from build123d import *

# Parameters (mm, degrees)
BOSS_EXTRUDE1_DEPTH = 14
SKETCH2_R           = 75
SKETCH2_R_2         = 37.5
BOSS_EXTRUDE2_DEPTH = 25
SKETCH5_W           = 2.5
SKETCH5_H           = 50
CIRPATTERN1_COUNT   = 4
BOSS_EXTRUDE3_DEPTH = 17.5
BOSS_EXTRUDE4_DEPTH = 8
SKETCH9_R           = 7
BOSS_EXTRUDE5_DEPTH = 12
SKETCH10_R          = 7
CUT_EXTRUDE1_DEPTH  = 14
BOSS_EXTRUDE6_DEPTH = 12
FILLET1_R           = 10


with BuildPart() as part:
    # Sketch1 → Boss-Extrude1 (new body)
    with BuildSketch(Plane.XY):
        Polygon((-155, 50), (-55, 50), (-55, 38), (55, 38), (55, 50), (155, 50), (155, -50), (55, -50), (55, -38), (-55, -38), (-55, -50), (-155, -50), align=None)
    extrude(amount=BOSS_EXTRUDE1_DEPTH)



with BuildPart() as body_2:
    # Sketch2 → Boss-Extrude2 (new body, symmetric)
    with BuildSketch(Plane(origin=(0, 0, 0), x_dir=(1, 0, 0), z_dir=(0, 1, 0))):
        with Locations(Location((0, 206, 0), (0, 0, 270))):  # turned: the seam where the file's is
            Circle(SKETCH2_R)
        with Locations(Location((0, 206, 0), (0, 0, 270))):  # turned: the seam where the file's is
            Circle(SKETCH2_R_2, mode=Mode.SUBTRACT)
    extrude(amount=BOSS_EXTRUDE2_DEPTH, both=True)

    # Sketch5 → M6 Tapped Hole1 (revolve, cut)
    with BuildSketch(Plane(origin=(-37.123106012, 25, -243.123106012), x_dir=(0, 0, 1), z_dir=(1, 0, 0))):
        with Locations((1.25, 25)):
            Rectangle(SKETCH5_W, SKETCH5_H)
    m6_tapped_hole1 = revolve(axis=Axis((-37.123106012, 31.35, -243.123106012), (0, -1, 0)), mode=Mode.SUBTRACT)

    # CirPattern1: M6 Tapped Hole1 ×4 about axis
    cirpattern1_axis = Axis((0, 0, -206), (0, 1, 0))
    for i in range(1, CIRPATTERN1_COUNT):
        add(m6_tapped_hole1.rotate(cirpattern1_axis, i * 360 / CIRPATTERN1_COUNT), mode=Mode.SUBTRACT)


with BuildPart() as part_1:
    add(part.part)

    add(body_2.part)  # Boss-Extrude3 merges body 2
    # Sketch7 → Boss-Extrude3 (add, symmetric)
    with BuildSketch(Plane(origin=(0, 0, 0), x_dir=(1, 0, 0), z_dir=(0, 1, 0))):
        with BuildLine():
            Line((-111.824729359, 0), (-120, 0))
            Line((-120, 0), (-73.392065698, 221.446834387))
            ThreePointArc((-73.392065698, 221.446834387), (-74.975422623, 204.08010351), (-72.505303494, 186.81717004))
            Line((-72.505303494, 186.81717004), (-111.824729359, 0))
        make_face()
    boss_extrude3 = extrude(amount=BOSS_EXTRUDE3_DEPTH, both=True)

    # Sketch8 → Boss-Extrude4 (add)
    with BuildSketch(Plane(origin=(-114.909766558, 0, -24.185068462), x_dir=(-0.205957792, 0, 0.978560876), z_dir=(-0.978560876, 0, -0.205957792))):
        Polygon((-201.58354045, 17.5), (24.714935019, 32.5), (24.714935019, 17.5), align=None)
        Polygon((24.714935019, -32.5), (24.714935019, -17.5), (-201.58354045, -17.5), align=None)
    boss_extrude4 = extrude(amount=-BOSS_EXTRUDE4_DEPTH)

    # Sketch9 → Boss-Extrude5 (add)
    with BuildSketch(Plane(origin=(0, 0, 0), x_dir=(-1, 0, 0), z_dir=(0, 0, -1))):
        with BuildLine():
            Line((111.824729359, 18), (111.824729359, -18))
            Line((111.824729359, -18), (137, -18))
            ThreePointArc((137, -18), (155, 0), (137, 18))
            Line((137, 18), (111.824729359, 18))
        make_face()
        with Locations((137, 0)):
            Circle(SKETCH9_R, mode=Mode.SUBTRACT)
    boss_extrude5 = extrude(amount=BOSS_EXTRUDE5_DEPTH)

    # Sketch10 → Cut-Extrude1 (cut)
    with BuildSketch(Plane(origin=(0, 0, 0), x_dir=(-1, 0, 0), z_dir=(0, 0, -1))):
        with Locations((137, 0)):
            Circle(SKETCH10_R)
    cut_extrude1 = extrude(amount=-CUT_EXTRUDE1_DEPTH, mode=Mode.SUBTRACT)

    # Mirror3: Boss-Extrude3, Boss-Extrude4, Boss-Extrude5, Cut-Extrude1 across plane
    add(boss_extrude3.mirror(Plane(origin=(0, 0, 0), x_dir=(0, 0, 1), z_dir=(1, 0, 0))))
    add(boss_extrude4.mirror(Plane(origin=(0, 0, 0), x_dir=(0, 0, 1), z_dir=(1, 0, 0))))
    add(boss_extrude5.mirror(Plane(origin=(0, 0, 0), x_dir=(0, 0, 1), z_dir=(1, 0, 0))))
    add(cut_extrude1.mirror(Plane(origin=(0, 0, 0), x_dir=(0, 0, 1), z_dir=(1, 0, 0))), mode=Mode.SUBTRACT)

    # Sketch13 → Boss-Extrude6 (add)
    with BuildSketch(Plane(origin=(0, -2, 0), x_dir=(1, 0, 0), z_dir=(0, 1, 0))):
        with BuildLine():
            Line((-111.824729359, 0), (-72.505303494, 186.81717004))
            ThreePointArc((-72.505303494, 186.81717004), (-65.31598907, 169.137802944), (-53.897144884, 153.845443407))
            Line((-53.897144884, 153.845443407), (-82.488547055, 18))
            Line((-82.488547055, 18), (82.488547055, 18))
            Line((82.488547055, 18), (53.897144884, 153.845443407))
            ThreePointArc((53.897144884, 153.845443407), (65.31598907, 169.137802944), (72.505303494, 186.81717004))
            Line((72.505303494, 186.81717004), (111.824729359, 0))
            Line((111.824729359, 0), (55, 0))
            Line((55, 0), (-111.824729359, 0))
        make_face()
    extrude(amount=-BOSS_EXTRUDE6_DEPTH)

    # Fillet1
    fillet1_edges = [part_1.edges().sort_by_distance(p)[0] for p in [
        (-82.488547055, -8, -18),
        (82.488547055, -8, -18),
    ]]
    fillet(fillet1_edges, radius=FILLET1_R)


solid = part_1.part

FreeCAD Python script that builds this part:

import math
import FreeCAD as App
import Part
import Sketcher
from FreeCAD import Vector


def edges_at(feature, points):
    """Names of the edges that pass closest to the given points."""
    edges = feature.Shape.Edges
    near = lambda p: min(range(len(edges)), key=lambda i: edges[i].distToShape(Part.Vertex(*p))[0])
    return sorted({f"Edge{near(p) + 1}" for p in points})

doc = App.newDocument("Part")
body = doc.addObject("PartDesign::Body", "Body")

sketch1 = body.newObject("Sketcher::SketchObject", "Sketch")
sketch1.AttachmentSupport = (doc.getObject("XY_Plane"), [""])
sketch1.MapMode = "FlatFace"
sketch1.addGeometry([
    Part.LineSegment(Vector(-55, 50, 0), Vector(-155, 50, 0)),
    Part.LineSegment(Vector(-155, 50, 0), Vector(-155, -50, 0)),
    Part.LineSegment(Vector(-155, -50, 0), Vector(-55, -50, 0)),
    Part.LineSegment(Vector(-55, -50, 0), Vector(-55, -38, 0)),
    Part.LineSegment(Vector(-55, -38, 0), Vector(55, -38, 0)),
    Part.LineSegment(Vector(55, -38, 0), Vector(55, -50, 0)),
    Part.LineSegment(Vector(55, -50, 0), Vector(155, -50, 0)),
    Part.LineSegment(Vector(155, -50, 0), Vector(155, 50, 0)),
    Part.LineSegment(Vector(155, 50, 0), Vector(55, 50, 0)),
    Part.LineSegment(Vector(55, 50, 0), Vector(55, 38, 0)),
    Part.LineSegment(Vector(55, 38, 0), Vector(-55, 38, 0)),
    Part.LineSegment(Vector(-55, 38, 0), Vector(-55, 50, 0)),
], False)
sketch1.addConstraint([
    Sketcher.Constraint("Coincident", 0, 2, 1, 1),
    Sketcher.Constraint("Coincident", 1, 2, 2, 1),
    Sketcher.Constraint("Coincident", 2, 2, 3, 1),
    Sketcher.Constraint("Coincident", 3, 2, 4, 1),
    Sketcher.Constraint("Coincident", 4, 2, 5, 1),
    Sketcher.Constraint("Coincident", 5, 2, 6, 1),
    Sketcher.Constraint("Coincident", 6, 2, 7, 1),
    Sketcher.Constraint("Coincident", 7, 2, 8, 1),
    Sketcher.Constraint("Coincident", 8, 2, 9, 1),
    Sketcher.Constraint("Coincident", 9, 2, 10, 1),
    Sketcher.Constraint("Coincident", 10, 2, 11, 1),
    Sketcher.Constraint("Coincident", 11, 2, 0, 1),
    Sketcher.Constraint("Horizontal", 0),
    Sketcher.Constraint("Vertical", 1),
    Sketcher.Constraint("Horizontal", 2),
    Sketcher.Constraint("Vertical", 3),
    Sketcher.Constraint("Horizontal", 4),
    Sketcher.Constraint("Vertical", 5),
    Sketcher.Constraint("Horizontal", 6),
    Sketcher.Constraint("Vertical", 7),
    Sketcher.Constraint("Horizontal", 8),
    Sketcher.Constraint("Vertical", 9),
    Sketcher.Constraint("Horizontal", 10),
    Sketcher.Constraint("Vertical", 11),
    Sketcher.Constraint("Symmetric", 0, 2, 6, 2, -1, 1),
    Sketcher.Constraint("Symmetric", 2, 2, 8, 2, -1, 1),
    Sketcher.Constraint("Symmetric", 4, 2, 10, 2, -1, 1),
    Sketcher.Constraint("Symmetric", 2, 2, 5, 2, -2),
    Sketcher.Constraint("Equal", 8, 1),
    Sketcher.Constraint("DistanceX", 0, 2, 0, 1, 100.0),
    Sketcher.Constraint("DistanceX", 4, 1, 4, 2, 110.0),
    Sketcher.Constraint("DistanceY", 3, 1, 3, 2, 12.0),
])
pad1 = body.newObject("PartDesign::Pad", "Pad")
pad1.Profile = sketch1
pad1.Length = 14
body2 = doc.addObject("PartDesign::Body", "Body001")

sketch2 = body2.newObject("Sketcher::SketchObject", "Sketch001")
sketch2.AttachmentSupport = (doc.getObject("XZ_Plane001"), [""])
sketch2.MapMode = "FlatFace"
sketch2.addGeometry([
    Part.Circle(Vector(0, -206, 0), Vector(0, 0, 1), 75),
    Part.Circle(Vector(0, -206, 0), Vector(0, 0, 1), 38),
], False)
sketch2.addConstraint([
    Sketcher.Constraint("Coincident", 1, 3, 0, 3),
    Sketcher.Constraint("PointOnObject", 0, 3, -2),
    Sketcher.Constraint("Diameter", 0, 150.0),
    Sketcher.Constraint("Diameter", 1, 75.0),
    Sketcher.Constraint("DistanceY", 0, 3, -1, 1, 206.0),
])
pad2 = body2.newObject("PartDesign::Pad", "Pad001")
pad2.Profile = sketch2
pad2.Length = 50
pad2.Midplane = True

sketch3 = body2.newObject("Sketcher::SketchObject", "Sketch002")
sketch3.AttachmentSupport = (doc.getObject("YZ_Plane001"), [""])
sketch3.MapMode = "FlatFace"
sketch3.AttachmentOffset = App.Placement(Vector(0, 0, -37.123106), App.Rotation())
sketch3.addGeometry([
    Part.LineSegment(Vector(-25, -243.1, 0), Vector(25, -243.1, 0)),
    Part.LineSegment(Vector(25, -243.1, 0), Vector(25, -240.6, 0)),
    Part.LineSegment(Vector(25, -240.6, 0), Vector(-25, -240.6, 0)),
    Part.LineSegment(Vector(-25, -240.6, 0), Vector(-25, -243.1, 0)),
], False)
sketch3.addGeometry(Part.LineSegment(Vector(25, -243.1, 0), Vector(-25, -243.1, 0)), True)
sketch3.addConstraint([
    Sketcher.Constraint("Coincident", 0, 2, 1, 1),
    Sketcher.Constraint("Coincident", 1, 2, 2, 1),
    Sketcher.Constraint("Coincident", 2, 2, 3, 1),
    Sketcher.Constraint("Coincident", 3, 2, 0, 1),
    Sketcher.Constraint("Horizontal", 0),
    Sketcher.Constraint("Vertical", 1),
    Sketcher.Constraint("Horizontal", 2),
    Sketcher.Constraint("Vertical", 3),
    Sketcher.Constraint("Horizontal", 4),
    Sketcher.Constraint("Coincident", 4, 1, 0, 2),
    Sketcher.Constraint("Vertical", 2, 2, 4, 2),
    Sketcher.Constraint("DistanceX", 0, 1, 0, 2, 50.0),
    Sketcher.Constraint("DistanceY", 1, 1, 1, 2, 2.5),
    Sketcher.Constraint("DistanceX", -1, 1, 0, 2, 25.0),
    Sketcher.Constraint("DistanceY", 0, 2, -1, 1, 243.123106),
])
groove = body2.newObject("PartDesign::Groove", "Groove")
groove.Profile = sketch3
groove.ReferenceAxis = (sketch3, ["Axis0"])
groove.Angle = 360
doc.recompute()

datumline = body2.newObject("PartDesign::Line", "DatumLine")
datumline.Placement = App.Placement(Vector(0, 0, -206), App.Rotation(Vector(0, 0, 1), Vector(0, 1, 0)))
polarpattern = body2.newObject("PartDesign::PolarPattern", "PolarPattern")
polarpattern.Originals = [groove]
polarpattern.Axis = (datumline, [""])
polarpattern.Angle = 360
polarpattern.Occurrences = 4
body2.Tip = polarpattern
body.AllowCompound = True
doc.recompute()

boolean = body.newObject("PartDesign::Boolean", "Boolean")
boolean.Type = "Fuse"
boolean.addObjects([body2])

sketch4 = body.newObject("Sketcher::SketchObject", "Sketch003")
sketch4.AttachmentSupport = (doc.getObject("XZ_Plane"), [""])
sketch4.MapMode = "FlatFace"
sketch4.addGeometry([
    Part.LineSegment(Vector(-120, 0, 0), Vector(-112, 0, 0)),
    Part.LineSegment(Vector(-112, 0, 0), Vector(-73, -187, 0)),
    Part.ArcOfCircle(Part.Circle(Vector(0, -206, 0), Vector(0, 0, 1), 75), math.radians(165), math.radians(192)),
    Part.LineSegment(Vector(-73, -221, 0), Vector(-120, 0, 0)),
], False)
sketch4.addConstraint([
    Sketcher.Constraint("Coincident", 0, 2, 1, 1),
    Sketcher.Constraint("Coincident", 1, 2, 2, 1),
    Sketcher.Constraint("Tangent", 2, 2, 3, 1),
    Sketcher.Constraint("Coincident", 3, 2, 0, 1),
    Sketcher.Constraint("Horizontal", 0),
    Sketcher.Constraint("PointOnObject", 2, 3, -2),
    Sketcher.Constraint("PointOnObject", 0, 2, -1),
    Sketcher.Constraint("Parallel", 1, 3),
    Sketcher.Constraint("Radius", 2, 75.0),
    Sketcher.Constraint("DistanceY", 2, 3, -1, 1, 206.0),
    Sketcher.Constraint("DistanceX", 3, 2, -1, 1, 120.0),
    Sketcher.Constraint("DistanceX", 0, 1, 0, 2, 8.175271),
])
pad3 = body.newObject("PartDesign::Pad", "Pad002")
pad3.Profile = sketch4
pad3.Length = 35
pad3.Midplane = True

sketch5 = body.newObject("Sketcher::SketchObject", "Sketch004")
sketch5.Placement = App.Placement(Vector(-114.909767, 0, -24.185068), App.Rotation(Vector(-0.205957792, 0, 0.978560876), Vector(0, 1, 0), Vector(-0.978560876, 0, -0.205957792), "ZXY"))
sketch5.addGeometry([
    Part.LineSegment(Vector(25, 33, 0), Vector(-202, 18, 0)),
    Part.LineSegment(Vector(-202, 18, 0), Vector(25, 18, 0)),
    Part.LineSegment(Vector(25, 18, 0), Vector(25, 33, 0)),
    Part.LineSegment(Vector(25, -33, 0), Vector(25, -18, 0)),
    Part.LineSegment(Vector(25, -18, 0), Vector(-202, -18, 0)),
    Part.LineSegment(Vector(-202, -18, 0), Vector(25, -33, 0)),
], False)
sketch5.addConstraint([
    Sketcher.Constraint("Coincident", 0, 2, 1, 1),
    Sketcher.Constraint("Coincident", 1, 2, 2, 1),
    Sketcher.Constraint("Coincident", 2, 2, 0, 1),
    Sketcher.Constraint("Coincident", 3, 2, 4, 1),
    Sketcher.Constraint("Coincident", 4, 2, 5, 1),
    Sketcher.Constraint("Coincident", 5, 2, 3, 1),
    Sketcher.Constraint("Horizontal", 1),
    Sketcher.Constraint("Vertical", 2),
    Sketcher.Constraint("Vertical", 3),
    Sketcher.Constraint("Horizontal", 4),
    Sketcher.Constraint("Symmetric", 1, 2, 3, 2, -1),
    Sketcher.Constraint("Vertical", 0, 2, 4, 2),
    Sketcher.Constraint("Equal", 2, 3),
    Sketcher.Constraint("DistanceY", 2, 1, 2, 2, 15.0),
    Sketcher.Constraint("DistanceY", 3, 2, 1, 2, 35.0),
    Sketcher.Constraint("Distance", 0, 226.795062),
    Sketcher.Constraint("DistanceX", 0, 2, -1, 1, 201.58354),
])
pad4 = body.newObject("PartDesign::Pad", "Pad003")
pad4.Profile = sketch5
pad4.Length = 8
pad4.Reversed = True

sketch6 = body.newObject("Sketcher::SketchObject", "Sketch005")
sketch6.AttachmentSupport = (doc.getObject("XY_Plane"), [""])
sketch6.MapMode = "FlatFace"
sketch6.addGeometry([
    Part.LineSegment(Vector(-112, 18, 0), Vector(-112, -18, 0)),
    Part.LineSegment(Vector(-112, -18, 0), Vector(-137, -18, 0)),
    Part.ArcOfCircle(Part.Circle(Vector(-137, 0, 0), Vector(0, 0, 1), 18), math.radians(90), math.radians(270)),
    Part.LineSegment(Vector(-137, 18, 0), Vector(-112, 18, 0)),
    Part.Circle(Vector(-137, 0, 0), Vector(0, 0, 1), 7),
], False)
sketch6.addConstraint([
    Sketcher.Constraint("Coincident", 0, 2, 1, 1),
    Sketcher.Constraint("Tangent", 1, 2, 2, 2),
    Sketcher.Constraint("Tangent", 2, 1, 3, 1),
    Sketcher.Constraint("Coincident", 3, 2, 0, 1),
    Sketcher.Constraint("Vertical", 0),
    Sketcher.Constraint("Horizontal", 1),
    Sketcher.Constraint("Horizontal", 3),
    Sketcher.Constraint("Coincident", 4, 3, 2, 3),
    Sketcher.Constraint("PointOnObject", 2, 3, -1),
    Sketcher.Constraint("Diameter", 4, 14.0),
    Sketcher.Constraint("Radius", 2, 18.0),
    Sketcher.Constraint("DistanceX", 2, 3, -1, 1, 137.0),
    Sketcher.Constraint("DistanceX", 1, 2, 1, 1, 25.175271),
])
pad5 = body.newObject("PartDesign::Pad", "Pad004")
pad5.Profile = sketch6
pad5.Length = 12
pad5.Reversed = True

sketch7 = body.newObject("Sketcher::SketchObject", "Sketch006")
sketch7.AttachmentSupport = (doc.getObject("XY_Plane"), [""])
sketch7.MapMode = "FlatFace"
sketch7.addGeometry(Part.Circle(Vector(-137, 0, 0), Vector(0, 0, 1), 7), False)
sketch7.addConstraint([
    Sketcher.Constraint("PointOnObject", 0, 3, -1),
    Sketcher.Constraint("Diameter", 0, 14.0),
    Sketcher.Constraint("DistanceX", 0, 3, -1, 1, 137.0),
])
pocket1 = body.newObject("PartDesign::Pocket", "Pocket")
pocket1.Profile = sketch7
pocket1.Length = 14
pocket1.Reversed = True
doc.recompute()

mirrored = body.newObject("PartDesign::Mirrored", "Mirrored")
mirrored.Originals = [pad3, pad4, pad5, pocket1]
mirrored.MirrorPlane = (doc.getObject("YZ_Plane"), [""])
body.Tip = mirrored

sketch8 = body.newObject("Sketcher::SketchObject", "Sketch007")
sketch8.AttachmentSupport = (doc.getObject("XZ_Plane"), [""])
sketch8.MapMode = "FlatFace"
sketch8.AttachmentOffset = App.Placement(Vector(0, 0, 2), App.Rotation())
sketch8.addGeometry([
    Part.LineSegment(Vector(-73, -187, 0), Vector(-112, 0, 0)),
    Part.LineSegment(Vector(-112, 0, 0), Vector(112, 0, 0)),
    Part.LineSegment(Vector(112, 0, 0), Vector(73, -187, 0)),
    Part.ArcOfCircle(Part.Circle(Vector(0, -206, 0), Vector(0, 0, 1), 75), math.radians(15), math.radians(44)),
    Part.LineSegment(Vector(54, -154, 0), Vector(82, -18, 0)),
    Part.LineSegment(Vector(82, -18, 0), Vector(-82, -18, 0)),
    Part.LineSegment(Vector(-82, -18, 0), Vector(-54, -154, 0)),
    Part.ArcOfCircle(Part.Circle(Vector(0, -206, 0), Vector(0, 0, 1), 75), math.radians(136), math.radians(165)),
], False)
sketch8.addConstraint([
    Sketcher.Constraint("Coincident", 0, 2, 1, 1),
    Sketcher.Constraint("Coincident", 1, 2, 2, 1),
    Sketcher.Constraint("Coincident", 2, 2, 3, 1),
    Sketcher.Constraint("Coincident", 3, 2, 4, 1),
    Sketcher.Constraint("Coincident", 4, 2, 5, 1),
    Sketcher.Constraint("Coincident", 5, 2, 6, 1),
    Sketcher.Constraint("Coincident", 6, 2, 7, 1),
    Sketcher.Constraint("Coincident", 7, 2, 0, 1),
    Sketcher.Constraint("Horizontal", 1),
    Sketcher.Constraint("Horizontal", 5),
    Sketcher.Constraint("Coincident", 7, 3, 3, 3),
    Sketcher.Constraint("Equal", 3, 7),
    Sketcher.Constraint("Symmetric", 0, 2, 1, 2, -1, 1),
    Sketcher.Constraint("Symmetric", 3, 2, 6, 2, -2),
    Sketcher.Constraint("Parallel", 2, 4),
    Sketcher.Constraint("Parallel", 0, 6),
    Sketcher.Constraint("Horizontal", 2, 2, 7, 2),
    Sketcher.Constraint("Radius", 3, 75.0),
    Sketcher.Constraint("DistanceY", 3, 3, -1, 1, 206.0),
    Sketcher.Constraint("DistanceY", 4, 2, -1, 1, 18.0),
    Sketcher.Constraint("DistanceX", 1, 1, 1, 2, 223.649459),
    Sketcher.Constraint("Distance", 4, 138.821658),
    Sketcher.Constraint("DistanceX", 5, 2, 5, 1, 164.977094),
])
pad6 = body.newObject("PartDesign::Pad", "Pad005")
pad6.Profile = sketch8
pad6.Length = 12
doc.recompute()

fillet = body.newObject("PartDesign::Fillet", "Fillet")
fillet.Base = (pad6, edges_at(pad6, [(-82.489, -8, -18), (82.489, -8, -18)]))
fillet.Radius = 10

doc.recompute()
